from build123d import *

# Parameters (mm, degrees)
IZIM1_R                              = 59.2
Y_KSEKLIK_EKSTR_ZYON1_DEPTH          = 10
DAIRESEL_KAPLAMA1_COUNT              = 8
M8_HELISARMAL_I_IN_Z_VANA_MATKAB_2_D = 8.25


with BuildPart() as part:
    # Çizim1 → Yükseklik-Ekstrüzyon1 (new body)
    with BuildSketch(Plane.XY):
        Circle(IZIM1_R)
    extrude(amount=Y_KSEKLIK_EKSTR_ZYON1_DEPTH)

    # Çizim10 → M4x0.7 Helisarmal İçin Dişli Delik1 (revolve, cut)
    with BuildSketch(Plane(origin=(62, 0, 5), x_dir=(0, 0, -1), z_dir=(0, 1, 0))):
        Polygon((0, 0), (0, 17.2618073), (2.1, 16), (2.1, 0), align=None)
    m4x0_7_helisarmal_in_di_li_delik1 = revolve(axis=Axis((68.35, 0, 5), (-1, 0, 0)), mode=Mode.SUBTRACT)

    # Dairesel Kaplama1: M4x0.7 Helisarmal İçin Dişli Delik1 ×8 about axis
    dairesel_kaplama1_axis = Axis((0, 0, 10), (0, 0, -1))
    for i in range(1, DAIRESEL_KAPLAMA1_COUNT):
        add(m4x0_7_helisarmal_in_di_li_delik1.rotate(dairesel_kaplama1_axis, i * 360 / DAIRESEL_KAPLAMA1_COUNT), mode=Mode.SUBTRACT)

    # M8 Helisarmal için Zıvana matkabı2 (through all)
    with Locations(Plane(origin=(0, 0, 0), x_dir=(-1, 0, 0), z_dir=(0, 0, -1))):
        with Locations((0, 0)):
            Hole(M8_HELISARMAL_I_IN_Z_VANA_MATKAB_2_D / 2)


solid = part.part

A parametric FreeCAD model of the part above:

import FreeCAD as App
import Part
import Sketcher
Q = App.Units.Quantity


def add_polygon(sketch, points):
    """Adds a closed chain of lines whose ends are joined by coincident constraints."""
    first, n = sketch.GeometryCount, len(points)
    for a, b in zip(points, points[1:] + points[:1]):
        sketch.addGeometry(Part.LineSegment(App.Vector(*a, 0), App.Vector(*b, 0)), False)
    for i in range(n):
        sketch.addConstraint(Sketcher.Constraint("Coincident", first + i, 2, first + (i + 1) % n, 1))

doc = App.newDocument("Part")
body = doc.addObject("PartDesign::Body", "Body")

sketch1 = body.newObject("Sketcher::SketchObject", "Sketch")
sketch1.AttachmentSupport = (doc.getObject("XY_Plane"), [""])
sketch1.MapMode = "FlatFace"
sketch1.addGeometry(Part.Circle(App.Vector(0, 0, 0), App.Vector(0, 0, 1), 59), False)
sketch1.addConstraint(Sketcher.Constraint("Coincident", 0, 3, -1, 1))
sketch1.addConstraint(Sketcher.Constraint("Diameter", 0, 118.4))
pad1 = body.newObject("PartDesign::Pad", "Pad")
pad1.Profile = sketch1
pad1.Length = 10

sketch2 = body.newObject("Sketcher::SketchObject", "Sketch001")
sketch2.AttachmentSupport = (doc.getObject("XZ_Plane"), [""])
sketch2.MapMode = "FlatFace"
add_polygon(sketch2, [(44.7, 5), (62, 5), (62, 2.9), (46, 2.9)])
sketch2.addGeometry(Part.LineSegment(App.Vector(62, 5, 0), App.Vector(44.7, 5, 0)), True)
sketch2.addConstraint(Sketcher.Constraint("Horizontal", 0))
sketch2.addConstraint(Sketcher.Constraint("Vertical", 1))
sketch2.addConstraint(Sketcher.Constraint("Horizontal", 2))
sketch2.addConstraint(Sketcher.Constraint("Horizontal", 4))
sketch2.addConstraint(Sketcher.Constraint("Coincident", 4, 1, 0, 2))
sketch2.addConstraint(Sketcher.Constraint("Equal", 0, 4))
sketch2.addConstraint(Sketcher.Constraint("DistanceX", 2, 2, 2, 1, 16.0))
sketch2.addConstraint(Sketcher.Constraint("Angle", 3, Q("121 deg")))
sketch2.addConstraint(Sketcher.Constraint("DistanceY", 1, 2, 1, 1, 2.1))
sketch2.addConstraint(Sketcher.Constraint("DistanceX", -1, 1, 0, 2, 62.0))
sketch2.addConstraint(Sketcher.Constraint("DistanceY", -1, 1, 0, 2, 5.0))
groove = body.newObject("PartDesign::Groove", "Groove")
groove.Profile = sketch2
groove.ReferenceAxis = (sketch2, ["Axis0"])
groove.Angle = 360
doc.recompute()

polarpattern = body.newObject("PartDesign::PolarPattern", "PolarPattern")
polarpattern.Originals = [groove]
polarpattern.Axis = (doc.getObject("Z_Axis"), [""])
polarpattern.Angle = 360
polarpattern.Occurrences = 8
body.Tip = polarpattern

sketch3 = body.newObject("Sketcher::SketchObject", "Sketch002")
sketch3.AttachmentSupport = (doc.getObject("XY_Plane"), [""])
sketch3.MapMode = "FlatFace"
sketch3.addGeometry(Part.Circle(App.Vector(0, 0, 0), App.Vector(0, 0, 1), 4.1), False)
sketch3.addConstraint(Sketcher.Constraint("Coincident", 0, 3, -1, 1))
sketch3.addConstraint(Sketcher.Constraint("Diameter", 0, 8.25))
doc.recompute()
hole = body.newObject("PartDesign::Hole", "Hole")
hole.Profile = sketch3
hole.ThreadType = "None"
hole.Diameter = 8.25
hole.DepthType = "ThroughAll"
hole.Reversed = True

doc.recompute()
